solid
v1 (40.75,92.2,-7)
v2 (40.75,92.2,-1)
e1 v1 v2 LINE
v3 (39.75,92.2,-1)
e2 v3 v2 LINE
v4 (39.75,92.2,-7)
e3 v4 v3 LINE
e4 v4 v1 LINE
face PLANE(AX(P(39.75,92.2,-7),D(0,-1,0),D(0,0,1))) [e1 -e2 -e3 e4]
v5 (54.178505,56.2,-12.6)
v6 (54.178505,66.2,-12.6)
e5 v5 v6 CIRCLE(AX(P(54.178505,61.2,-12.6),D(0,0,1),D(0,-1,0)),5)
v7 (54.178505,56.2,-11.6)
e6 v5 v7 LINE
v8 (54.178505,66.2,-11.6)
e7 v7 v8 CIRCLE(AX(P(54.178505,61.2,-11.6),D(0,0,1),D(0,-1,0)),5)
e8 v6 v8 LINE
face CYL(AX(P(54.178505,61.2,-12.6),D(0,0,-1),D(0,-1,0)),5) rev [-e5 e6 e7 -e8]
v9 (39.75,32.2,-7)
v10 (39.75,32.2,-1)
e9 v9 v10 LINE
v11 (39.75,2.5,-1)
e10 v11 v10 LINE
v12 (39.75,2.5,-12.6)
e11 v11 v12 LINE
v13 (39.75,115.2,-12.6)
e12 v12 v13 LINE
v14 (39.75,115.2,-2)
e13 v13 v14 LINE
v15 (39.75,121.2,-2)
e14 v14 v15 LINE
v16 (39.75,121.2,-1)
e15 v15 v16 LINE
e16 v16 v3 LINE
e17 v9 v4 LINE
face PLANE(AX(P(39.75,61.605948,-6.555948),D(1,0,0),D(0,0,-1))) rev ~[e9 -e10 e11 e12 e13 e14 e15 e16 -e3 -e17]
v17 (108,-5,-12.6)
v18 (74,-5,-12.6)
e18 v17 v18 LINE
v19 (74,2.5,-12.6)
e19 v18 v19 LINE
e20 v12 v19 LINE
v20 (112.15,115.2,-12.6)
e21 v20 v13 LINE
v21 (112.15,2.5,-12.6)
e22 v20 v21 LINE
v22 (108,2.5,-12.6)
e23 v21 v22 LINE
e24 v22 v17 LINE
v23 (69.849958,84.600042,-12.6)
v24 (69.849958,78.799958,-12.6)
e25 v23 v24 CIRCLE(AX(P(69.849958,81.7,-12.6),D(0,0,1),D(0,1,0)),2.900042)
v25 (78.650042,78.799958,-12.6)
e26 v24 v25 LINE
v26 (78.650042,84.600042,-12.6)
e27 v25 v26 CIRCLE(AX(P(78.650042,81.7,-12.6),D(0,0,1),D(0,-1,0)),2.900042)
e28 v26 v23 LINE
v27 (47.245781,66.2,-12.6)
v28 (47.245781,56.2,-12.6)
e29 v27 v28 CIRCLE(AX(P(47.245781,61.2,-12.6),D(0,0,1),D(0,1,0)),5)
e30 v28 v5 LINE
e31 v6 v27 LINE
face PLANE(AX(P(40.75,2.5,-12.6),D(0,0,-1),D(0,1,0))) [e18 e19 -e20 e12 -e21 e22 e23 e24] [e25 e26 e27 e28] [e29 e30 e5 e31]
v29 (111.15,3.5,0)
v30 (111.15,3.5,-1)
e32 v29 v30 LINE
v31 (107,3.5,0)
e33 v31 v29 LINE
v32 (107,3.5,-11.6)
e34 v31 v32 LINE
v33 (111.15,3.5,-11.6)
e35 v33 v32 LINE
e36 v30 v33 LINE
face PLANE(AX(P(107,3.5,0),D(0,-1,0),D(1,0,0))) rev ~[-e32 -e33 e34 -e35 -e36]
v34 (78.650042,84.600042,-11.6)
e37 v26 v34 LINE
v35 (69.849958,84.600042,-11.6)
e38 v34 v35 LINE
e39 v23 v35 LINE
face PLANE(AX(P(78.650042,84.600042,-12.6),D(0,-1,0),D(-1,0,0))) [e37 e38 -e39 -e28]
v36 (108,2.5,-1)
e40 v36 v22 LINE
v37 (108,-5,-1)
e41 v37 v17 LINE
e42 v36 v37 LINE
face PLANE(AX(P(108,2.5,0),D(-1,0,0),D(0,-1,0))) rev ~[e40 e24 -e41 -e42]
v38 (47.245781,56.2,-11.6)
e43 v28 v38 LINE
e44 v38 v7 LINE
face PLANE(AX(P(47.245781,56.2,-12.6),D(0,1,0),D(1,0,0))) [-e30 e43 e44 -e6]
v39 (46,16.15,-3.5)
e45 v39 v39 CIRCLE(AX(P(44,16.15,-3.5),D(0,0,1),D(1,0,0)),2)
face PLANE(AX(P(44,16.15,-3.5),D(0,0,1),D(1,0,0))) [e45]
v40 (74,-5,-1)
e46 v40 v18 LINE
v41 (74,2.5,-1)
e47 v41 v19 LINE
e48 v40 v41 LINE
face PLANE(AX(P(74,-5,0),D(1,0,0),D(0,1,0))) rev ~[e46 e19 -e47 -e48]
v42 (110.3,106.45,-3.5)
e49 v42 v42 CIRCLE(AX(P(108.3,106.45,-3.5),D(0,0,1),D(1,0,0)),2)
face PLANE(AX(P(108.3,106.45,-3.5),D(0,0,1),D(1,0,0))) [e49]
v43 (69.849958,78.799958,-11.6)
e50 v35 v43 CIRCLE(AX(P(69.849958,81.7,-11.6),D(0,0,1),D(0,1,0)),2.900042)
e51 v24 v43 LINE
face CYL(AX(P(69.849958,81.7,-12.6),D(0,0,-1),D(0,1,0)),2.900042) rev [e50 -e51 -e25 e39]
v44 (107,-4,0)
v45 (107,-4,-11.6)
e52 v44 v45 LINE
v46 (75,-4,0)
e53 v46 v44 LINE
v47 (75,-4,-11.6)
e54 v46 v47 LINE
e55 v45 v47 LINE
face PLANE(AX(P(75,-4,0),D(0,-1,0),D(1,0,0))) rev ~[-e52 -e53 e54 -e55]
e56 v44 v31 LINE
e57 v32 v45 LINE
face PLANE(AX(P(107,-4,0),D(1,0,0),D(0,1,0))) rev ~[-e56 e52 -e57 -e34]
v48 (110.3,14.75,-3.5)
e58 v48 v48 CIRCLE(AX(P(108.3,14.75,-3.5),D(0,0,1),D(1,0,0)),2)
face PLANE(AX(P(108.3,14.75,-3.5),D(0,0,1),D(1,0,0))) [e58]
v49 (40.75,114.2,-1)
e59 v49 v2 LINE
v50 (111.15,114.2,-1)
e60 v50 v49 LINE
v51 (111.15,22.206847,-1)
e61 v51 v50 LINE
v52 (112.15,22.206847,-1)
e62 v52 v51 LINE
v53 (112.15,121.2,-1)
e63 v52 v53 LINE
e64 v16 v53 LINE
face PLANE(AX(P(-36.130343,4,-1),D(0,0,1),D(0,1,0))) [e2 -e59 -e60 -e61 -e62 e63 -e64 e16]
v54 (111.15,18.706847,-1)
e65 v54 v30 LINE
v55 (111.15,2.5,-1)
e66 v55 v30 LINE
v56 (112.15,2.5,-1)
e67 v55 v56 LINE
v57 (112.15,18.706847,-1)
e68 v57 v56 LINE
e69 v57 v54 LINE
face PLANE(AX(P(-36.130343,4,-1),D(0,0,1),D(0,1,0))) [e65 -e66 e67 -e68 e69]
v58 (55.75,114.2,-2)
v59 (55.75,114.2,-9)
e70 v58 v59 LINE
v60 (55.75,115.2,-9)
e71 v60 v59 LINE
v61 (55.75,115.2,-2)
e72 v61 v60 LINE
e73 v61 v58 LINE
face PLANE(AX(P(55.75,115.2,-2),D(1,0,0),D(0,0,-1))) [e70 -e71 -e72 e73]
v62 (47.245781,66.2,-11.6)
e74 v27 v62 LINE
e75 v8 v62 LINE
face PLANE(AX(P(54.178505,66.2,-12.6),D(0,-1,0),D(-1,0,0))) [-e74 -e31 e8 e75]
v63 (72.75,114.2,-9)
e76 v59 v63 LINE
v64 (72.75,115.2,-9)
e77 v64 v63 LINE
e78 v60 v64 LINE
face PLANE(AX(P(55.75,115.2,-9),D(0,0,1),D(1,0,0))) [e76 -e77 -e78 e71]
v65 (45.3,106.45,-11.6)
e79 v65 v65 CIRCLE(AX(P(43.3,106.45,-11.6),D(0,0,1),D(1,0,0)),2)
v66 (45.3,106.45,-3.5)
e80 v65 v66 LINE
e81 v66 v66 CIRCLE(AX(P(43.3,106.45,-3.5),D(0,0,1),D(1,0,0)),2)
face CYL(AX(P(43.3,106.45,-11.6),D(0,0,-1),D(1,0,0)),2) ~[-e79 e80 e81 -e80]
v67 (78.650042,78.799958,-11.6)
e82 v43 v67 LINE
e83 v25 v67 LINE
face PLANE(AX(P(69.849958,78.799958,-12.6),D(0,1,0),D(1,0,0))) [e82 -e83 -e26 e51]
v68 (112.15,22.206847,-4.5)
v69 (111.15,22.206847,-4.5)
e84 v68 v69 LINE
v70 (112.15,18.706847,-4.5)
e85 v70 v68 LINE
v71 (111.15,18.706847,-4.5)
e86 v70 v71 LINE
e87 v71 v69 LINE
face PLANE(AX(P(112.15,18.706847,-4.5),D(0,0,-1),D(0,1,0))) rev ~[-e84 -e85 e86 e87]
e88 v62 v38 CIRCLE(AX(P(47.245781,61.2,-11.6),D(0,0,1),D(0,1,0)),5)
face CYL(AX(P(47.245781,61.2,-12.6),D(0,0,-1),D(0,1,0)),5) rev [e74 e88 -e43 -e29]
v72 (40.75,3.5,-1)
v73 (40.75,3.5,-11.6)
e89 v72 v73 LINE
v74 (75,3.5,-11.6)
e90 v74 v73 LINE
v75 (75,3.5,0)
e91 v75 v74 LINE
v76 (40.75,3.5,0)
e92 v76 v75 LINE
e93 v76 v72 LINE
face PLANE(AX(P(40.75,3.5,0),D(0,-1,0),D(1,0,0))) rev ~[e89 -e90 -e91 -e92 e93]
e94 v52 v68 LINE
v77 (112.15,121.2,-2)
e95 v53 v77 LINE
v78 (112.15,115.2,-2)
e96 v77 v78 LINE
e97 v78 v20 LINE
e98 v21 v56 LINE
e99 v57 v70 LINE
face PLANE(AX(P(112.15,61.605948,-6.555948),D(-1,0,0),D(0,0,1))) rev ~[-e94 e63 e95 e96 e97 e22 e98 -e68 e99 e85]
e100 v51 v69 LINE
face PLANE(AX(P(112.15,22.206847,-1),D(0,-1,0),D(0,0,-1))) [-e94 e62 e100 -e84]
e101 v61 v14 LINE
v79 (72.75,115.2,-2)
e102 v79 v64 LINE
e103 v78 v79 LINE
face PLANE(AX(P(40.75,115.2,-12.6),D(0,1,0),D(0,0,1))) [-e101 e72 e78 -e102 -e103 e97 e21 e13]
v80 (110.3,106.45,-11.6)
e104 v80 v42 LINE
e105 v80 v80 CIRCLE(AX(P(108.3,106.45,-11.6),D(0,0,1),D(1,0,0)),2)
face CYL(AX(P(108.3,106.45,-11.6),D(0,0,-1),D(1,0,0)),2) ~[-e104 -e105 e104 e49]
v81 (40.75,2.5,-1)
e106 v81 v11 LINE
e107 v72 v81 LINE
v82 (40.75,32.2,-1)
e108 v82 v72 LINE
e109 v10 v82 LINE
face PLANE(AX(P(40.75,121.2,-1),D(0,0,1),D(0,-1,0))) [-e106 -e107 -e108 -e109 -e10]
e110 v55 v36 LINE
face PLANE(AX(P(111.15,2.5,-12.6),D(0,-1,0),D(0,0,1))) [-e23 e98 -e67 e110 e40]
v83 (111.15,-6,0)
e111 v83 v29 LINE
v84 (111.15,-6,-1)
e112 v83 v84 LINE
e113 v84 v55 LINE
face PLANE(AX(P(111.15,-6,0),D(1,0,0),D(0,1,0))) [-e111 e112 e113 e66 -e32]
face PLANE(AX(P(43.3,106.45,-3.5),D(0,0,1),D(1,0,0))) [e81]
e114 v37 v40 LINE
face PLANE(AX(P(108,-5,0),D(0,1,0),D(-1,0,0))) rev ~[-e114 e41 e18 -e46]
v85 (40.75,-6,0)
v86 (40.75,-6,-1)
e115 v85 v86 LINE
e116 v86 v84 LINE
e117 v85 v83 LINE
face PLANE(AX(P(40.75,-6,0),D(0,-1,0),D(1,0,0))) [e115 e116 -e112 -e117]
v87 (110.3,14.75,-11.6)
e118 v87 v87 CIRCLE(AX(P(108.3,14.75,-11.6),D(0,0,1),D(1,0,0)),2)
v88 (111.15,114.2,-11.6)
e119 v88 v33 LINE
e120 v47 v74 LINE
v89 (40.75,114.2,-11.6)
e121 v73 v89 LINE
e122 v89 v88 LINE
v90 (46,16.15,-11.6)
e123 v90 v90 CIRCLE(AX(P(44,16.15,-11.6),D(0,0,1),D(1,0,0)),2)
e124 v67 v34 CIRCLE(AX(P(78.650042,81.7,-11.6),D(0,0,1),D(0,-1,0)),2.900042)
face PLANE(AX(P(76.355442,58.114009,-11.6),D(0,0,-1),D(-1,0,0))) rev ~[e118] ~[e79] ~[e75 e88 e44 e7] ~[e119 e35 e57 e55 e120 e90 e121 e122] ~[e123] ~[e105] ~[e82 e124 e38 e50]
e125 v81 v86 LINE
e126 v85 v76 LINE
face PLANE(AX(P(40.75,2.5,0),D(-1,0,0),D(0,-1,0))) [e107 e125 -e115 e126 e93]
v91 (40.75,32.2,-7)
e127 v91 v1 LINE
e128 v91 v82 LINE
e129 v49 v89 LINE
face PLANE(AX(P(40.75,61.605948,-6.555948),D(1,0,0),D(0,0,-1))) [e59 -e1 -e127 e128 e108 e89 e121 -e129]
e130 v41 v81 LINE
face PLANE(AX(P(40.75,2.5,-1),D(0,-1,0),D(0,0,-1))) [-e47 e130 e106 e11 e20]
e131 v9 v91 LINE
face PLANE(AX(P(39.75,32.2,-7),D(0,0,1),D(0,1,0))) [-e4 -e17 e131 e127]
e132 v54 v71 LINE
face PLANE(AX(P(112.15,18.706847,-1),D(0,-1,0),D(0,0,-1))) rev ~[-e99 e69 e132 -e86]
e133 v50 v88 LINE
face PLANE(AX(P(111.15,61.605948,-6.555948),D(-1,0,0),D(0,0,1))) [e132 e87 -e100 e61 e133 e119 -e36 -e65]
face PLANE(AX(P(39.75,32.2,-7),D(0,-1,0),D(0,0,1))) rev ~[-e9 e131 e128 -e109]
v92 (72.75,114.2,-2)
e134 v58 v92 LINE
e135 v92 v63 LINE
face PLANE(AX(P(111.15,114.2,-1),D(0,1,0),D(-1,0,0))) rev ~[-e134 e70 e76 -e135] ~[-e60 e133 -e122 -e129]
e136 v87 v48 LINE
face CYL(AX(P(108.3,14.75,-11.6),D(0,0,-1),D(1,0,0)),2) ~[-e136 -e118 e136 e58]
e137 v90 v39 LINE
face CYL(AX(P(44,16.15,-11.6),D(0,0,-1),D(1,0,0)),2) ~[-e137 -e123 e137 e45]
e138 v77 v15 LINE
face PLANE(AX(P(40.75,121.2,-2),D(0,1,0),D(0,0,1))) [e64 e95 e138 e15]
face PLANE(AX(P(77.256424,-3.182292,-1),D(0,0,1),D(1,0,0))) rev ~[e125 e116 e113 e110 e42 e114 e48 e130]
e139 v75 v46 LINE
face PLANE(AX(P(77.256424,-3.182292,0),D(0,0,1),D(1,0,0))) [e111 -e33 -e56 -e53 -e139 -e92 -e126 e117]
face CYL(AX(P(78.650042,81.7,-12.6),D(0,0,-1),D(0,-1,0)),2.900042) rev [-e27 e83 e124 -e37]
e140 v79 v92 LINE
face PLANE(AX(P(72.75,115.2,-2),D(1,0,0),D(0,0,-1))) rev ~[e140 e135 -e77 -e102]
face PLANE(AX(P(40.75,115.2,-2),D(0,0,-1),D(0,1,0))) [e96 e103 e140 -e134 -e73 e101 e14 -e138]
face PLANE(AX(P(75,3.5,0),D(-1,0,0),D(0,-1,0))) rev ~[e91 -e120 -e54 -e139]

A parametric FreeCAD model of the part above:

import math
import FreeCAD as App
import Part
import Sketcher

V = App.Vector
Q = App.Units.Quantity


def add_polygon(sketch, points):
    """Adds a closed chain of lines whose ends are joined by coincident constraints."""
    first, n = sketch.GeometryCount, len(points)
    for a, b in zip(points, points[1:] + points[:1]):
        sketch.addGeometry(Part.LineSegment(App.Vector(*a, 0), App.Vector(*b, 0)), False)
    for i in range(n):
        sketch.addConstraint(Sketcher.Constraint("Coincident", first + i, 2, first + (i + 1) % n, 1))

doc = App.newDocument("Part")
body = doc.addObject("PartDesign::Body", "Body")

# Sketch on XY plane
sketch1 = body.newObject("Sketcher::SketchObject", "Sketch")
sketch1.AttachmentSupport = (doc.getObject("XY_Plane"), [""])
sketch1.MapMode = "FlatFace"
add_polygon(sketch1, [(6, 118), (6, 7), (176, 7), (176, 118)])  # lines 0-3
sketch1.addConstraint([
    Sketcher.Constraint("Vertical", 0),
    Sketcher.Constraint("Horizontal", 1),
    Sketcher.Constraint("Vertical", 2),
    Sketcher.Constraint("Horizontal", 3),
    Sketcher.Constraint("DistanceX", 1, 1, 1, 2, Q("170.2 mm")),
    Sketcher.Constraint("DistanceY", 0, 2, 0, 1, Q("111.2 mm")),
    Sketcher.Constraint("DistanceY", -1, 1, 0, 2, Q("7 mm")),
    Sketcher.Constraint("DistanceX", -1, 1, 0, 2, Q("5.9 mm")),
])
pad1 = body.newObject("PartDesign::Pad", "Pad")
pad1.Profile = sketch1
pad1.Length = 0.9

# Sketch on XY plane
sketch2 = body.newObject("Sketcher::SketchObject", "Sketch001")
sketch2.AttachmentSupport = (doc.getObject("XY_Plane"), [""])
sketch2.MapMode = "FlatFace"
add_polygon(sketch2, [(179, 121), (179, 4), (3, 4), (3, 121)])  # lines 0-3
sketch2.addConstraint([
    Sketcher.Constraint("Vertical", 0),
    Sketcher.Constraint("Horizontal", 1),
    Sketcher.Constraint("Vertical", 2),
    Sketcher.Constraint("Horizontal", 3),
    Sketcher.Constraint("DistanceX", 1, 2, 1, 1, Q("176.2 mm")),
    Sketcher.Constraint("DistanceY", 0, 2, 0, 1, Q("117.2 mm")),
    Sketcher.Constraint("DistanceY", -1, 1, 0, 2, Q("4 mm")),
    Sketcher.Constraint("DistanceX", -1, 1, 0, 2, Q("179.1 mm")),
])
pad2 = body.newObject("PartDesign::Pad", "Pad001")
pad2.Profile = sketch2
pad2.Length = 1
pad2.Reversed = True

# Sketch on XZ plane
sketch3 = body.newObject("Sketcher::SketchObject", "Sketch002")
sketch3.AttachmentSupport = (doc.getObject("XZ_Plane"), [""])
sketch3.MapMode = "FlatFace"
sketch3.AttachmentOffset = App.Placement(V(0, 0, -4), App.Rotation())
add_polygon(sketch3, [(75, 0.9), (75, -1), (107, -1), (107, 0.9)])  # lines 0-3
sketch3.addConstraint([
    Sketcher.Constraint("Vertical", 0),
    Sketcher.Constraint("Horizontal", 1),
    Sketcher.Constraint("Vertical", 2),
    Sketcher.Constraint("Horizontal", 3),
    Sketcher.Constraint("DistanceX", 1, 1, 1, 2, Q("32 mm")),
    Sketcher.Constraint("DistanceY", 0, 2, 0, 1, Q("1.9 mm")),
    Sketcher.Constraint("DistanceX", -1, 1, 0, 2, Q("75 mm")),
    Sketcher.Constraint("DistanceY", 0, 2, -1, 1, Q("1 mm")),
])
pocket1 = body.newObject("PartDesign::Pocket", "Pocket")
pocket1.Profile = sketch3
pocket1.Length = 5

# Sketch on XY plane
sketch4 = body.newObject("Sketcher::SketchObject", "Sketch003")
sketch4.AttachmentSupport = (doc.getObject("XY_Plane"), [""])
sketch4.MapMode = "FlatFace"
sketch4.AttachmentOffset = App.Placement(V(0, 0, -1), App.Rotation())
add_polygon(sketch4, [(111, 121), (111, 114), (41, 114), (41, 121)])  # lines 0-3
sketch4.addConstraint([
    Sketcher.Constraint("Vertical", 0),
    Sketcher.Constraint("Horizontal", 1),
    Sketcher.Constraint("Vertical", 2),
    Sketcher.Constraint("Horizontal", 3),
    Sketcher.Constraint("DistanceY", 0, 2, 0, 1, Q("7 mm")),
    Sketcher.Constraint("DistanceX", 1, 2, 1, 1, Q("70.4 mm")),
    Sketcher.Constraint("DistanceY", -1, 1, 0, 2, Q("114.2 mm")),
    Sketcher.Constraint("DistanceX", -1, 1, 0, 2, Q("111.15 mm")),
])
pad3 = body.newObject("PartDesign::Pad", "Pad002")
pad3.Profile = sketch4
pad3.Length = 1
pad3.Reversed = True

# Sketch on XY plane
sketch5 = body.newObject("Sketcher::SketchObject", "Sketch004")
sketch5.AttachmentSupport = (doc.getObject("XY_Plane"), [""])
sketch5.MapMode = "FlatFace"
sketch5.AttachmentOffset = App.Placement(V(0, 0, -1), App.Rotation())
add_polygon(sketch5, [(111.2, 115.2), (111.2, 114.2), (40.8, 114.2), (40.8, 115.2)])  # lines 0-3
sketch5.addConstraint([
    Sketcher.Constraint("Vertical", 0),
    Sketcher.Constraint("Horizontal", 1),
    Sketcher.Constraint("Vertical", 2),
    Sketcher.Constraint("Horizontal", 3),
    Sketcher.Constraint("DistanceY", 0, 2, 0, 1, Q("1 mm")),
    Sketcher.Constraint("DistanceX", 1, 2, 1, 1, Q("70.4 mm")),
    Sketcher.Constraint("DistanceY", -1, 1, 0, 2, Q("114.2 mm")),
    Sketcher.Constraint("DistanceX", -1, 1, 0, 2, Q("111.15 mm")),
])
pad4 = body.newObject("PartDesign::Pad", "Pad003")
pad4.Profile = sketch5
pad4.Length = 11.6
pad4.Reversed = True

# Sketch on XY plane
sketch6 = body.newObject("Sketcher::SketchObject", "Sketch005")
sketch6.AttachmentSupport = (doc.getObject("XY_Plane"), [""])
sketch6.MapMode = "FlatFace"
sketch6.AttachmentOffset = App.Placement(V(0, 0, -12.6), App.Rotation())
add_polygon(sketch6, [(40.8, 114.2), (111.2, 114.2), (111.2, 2.5), (108, 2.5), (108, -5), (74, -5), (74, 2.5), (40.8, 2.5)])  # lines 0-7
sketch6.addConstraint([
    Sketcher.Constraint("Horizontal", 0),
    Sketcher.Constraint("Vertical", 1),
    Sketcher.Constraint("Horizontal", 2),
    Sketcher.Constraint("Vertical", 3),
    Sketcher.Constraint("Horizontal", 4),
    Sketcher.Constraint("Vertical", 5),
    Sketcher.Constraint("Horizontal", 6),
    Sketcher.Constraint("Vertical", 7),
    Sketcher.Constraint("Horizontal", 2, 2, 5, 2),
    Sketcher.Constraint("DistanceX", 4, 2, 4, 1, Q("34 mm")),
    Sketcher.Constraint("DistanceX", 0, 1, 0, 2, Q("70.4 mm")),
    Sketcher.Constraint("DistanceY", 1, 2, 1, 1, Q("111.7 mm")),
    Sketcher.Constraint("DistanceY", 3, 2, 3, 1, Q("7.5 mm")),
    Sketcher.Constraint("DistanceX", -1, 1, 2, 2, Q("108 mm")),
    Sketcher.Constraint("DistanceY", 3, 2, -1, 1, Q("5 mm")),
    Sketcher.Constraint("DistanceX", 2, 2, 2, 1, Q("3.15 mm")),
])
pad5 = body.newObject("PartDesign::Pad", "Pad004")
pad5.Profile = sketch6
pad5.Length = 1

# Sketch on XY plane
sketch7 = body.newObject("Sketcher::SketchObject", "Sketch006")
sketch7.AttachmentSupport = (doc.getObject("XY_Plane"), [""])
sketch7.MapMode = "FlatFace"
sketch7.AttachmentOffset = App.Placement(V(0, 0, -1), App.Rotation())
add_polygon(sketch7, [(107, 3.5), (111.2, 3.5), (111.2, 2.5), (108, 2.5), (108, -5), (74, -5), (74, 2.5), (40.8, 2.5), (40.8, 3.5), (75, 3.5), (75, -4), (107, -4)])  # lines 0-11
sketch7.addConstraint([
    Sketcher.Constraint("Horizontal", 0),
    Sketcher.Constraint("Vertical", 1),
    Sketcher.Constraint("Horizontal", 2),
    Sketcher.Constraint("Vertical", 3),
    Sketcher.Constraint("Horizontal", 4),
    Sketcher.Constraint("Vertical", 5),
    Sketcher.Constraint("Horizontal", 6),
    Sketcher.Constraint("Vertical", 7),
    Sketcher.Constraint("Horizontal", 8),
    Sketcher.Constraint("Vertical", 9),
    Sketcher.Constraint("Horizontal", 10),
    Sketcher.Constraint("Vertical", 11),
    Sketcher.Constraint("Horizontal", 2, 2, 5, 2),
    Sketcher.Constraint("Horizontal", 0, 2, 7, 2),
    Sketcher.Constraint("Equal", 5, 9),
    Sketcher.Constraint("DistanceX", 4, 2, 4, 1, Q("34 mm")),
    Sketcher.Constraint("DistanceX", 10, 1, 10, 2, Q("32 mm")),
    Sketcher.Constraint("DistanceY", 1, 2, 1, 1, Q("1 mm")),
    Sketcher.Constraint("DistanceY", 3, 2, 3, 1, Q("7.5 mm")),
    Sketcher.Constraint("DistanceX", -1, 1, 2, 2, Q("108 mm")),
    Sketcher.Constraint("DistanceY", 3, 2, -1, 1, Q("5 mm")),
    Sketcher.Constraint("DistanceX", -1, 1, 8, 2, Q("75 mm")),
    Sketcher.Constraint("DistanceX", 0, 1, 0, 2, Q("4.15 mm")),
    Sketcher.Constraint("DistanceX", 6, 2, 6, 1, Q("33.25 mm")),
])
pad6 = body.newObject("PartDesign::Pad", "Pad005")
pad6.Profile = sketch7
pad6.Type = "TwoLengths"
pad6.Length = 11.6
pad6.Length2 = 1
pad6.Reversed = True

# Sketch on XY plane
sketch8 = body.newObject("Sketcher::SketchObject", "Sketch007")
sketch8.AttachmentSupport = (doc.getObject("XY_Plane"), [""])
sketch8.MapMode = "FlatFace"
add_polygon(sketch8, [(40.8, 2.5), (74, 2.5), (74, -5), (108, -5), (108, 2.5), (111.2, 2.5), (111.2, -6), (40.8, -6)])  # lines 0-7
sketch8.addConstraint([
    Sketcher.Constraint("Horizontal", 0),
    Sketcher.Constraint("Vertical", 1),
    Sketcher.Constraint("Horizontal", 2),
    Sketcher.Constraint("Vertical", 3),
    Sketcher.Constraint("Horizontal", 4),
    Sketcher.Constraint("Vertical", 5),
    Sketcher.Constraint("Horizontal", 6),
    Sketcher.Constraint("Vertical", 7),
    Sketcher.Constraint("Horizontal", 0, 2, 3, 2),
    Sketcher.Constraint("DistanceX", 2, 1, 2, 2, Q("34 mm")),
    Sketcher.Constraint("DistanceX", 6, 2, 6, 1, Q("70.4 mm")),
    Sketcher.Constraint("DistanceY", 1, 2, 1, 1, Q("7.5 mm")),
    Sketcher.Constraint("DistanceY", 5, 2, 5, 1, Q("8.5 mm")),
    Sketcher.Constraint("DistanceX", -1, 1, 0, 2, Q("74 mm")),
    Sketcher.Constraint("DistanceY", 1, 2, -1, 1, Q("5 mm")),
    Sketcher.Constraint("DistanceX", 0, 1, 0, 2, Q("33.25 mm")),
])
pad7 = body.newObject("PartDesign::Pad", "Pad006")
pad7.Profile = sketch8
pad7.Length = 1
pad7.Reversed = True

# Sketch on YZ plane
sketch9 = body.newObject("Sketcher::SketchObject", "Sketch008")
sketch9.AttachmentSupport = (doc.getObject("YZ_Plane"), [""])
sketch9.MapMode = "FlatFace"
sketch9.AttachmentOffset = App.Placement(V(0, 0, 111.15), App.Rotation())
add_polygon(sketch9, [(121.2, -2), (121.2, -1), (2.5, -1), (2.5, -12.6), (115.2, -12.6), (115.2, -2)])  # lines 0-5
sketch9.addConstraint([
    Sketcher.Constraint("Vertical", 0),
    Sketcher.Constraint("Horizontal", 1),
    Sketcher.Constraint("Vertical", 2),
    Sketcher.Constraint("Horizontal", 3),
    Sketcher.Constraint("Vertical", 4),
    Sketcher.Constraint("Horizontal", 5),
    Sketcher.Constraint("DistanceX", 5, 1, 5, 2, Q("6 mm")),
    Sketcher.Constraint("DistanceY", 0, 1, 0, 2, Q("1 mm")),
    Sketcher.Constraint("DistanceX", 1, 2, 1, 1, Q("118.7 mm")),
    Sketcher.Constraint("DistanceY", 2, 2, 2, 1, Q("11.6 mm")),
    Sketcher.Constraint("DistanceY", 0, 2, -1, 1, Q("1 mm")),
    Sketcher.Constraint("DistanceX", -1, 1, 0, 2, Q("121.2 mm")),
])
pad8 = body.newObject("PartDesign::Pad", "Pad007")
pad8.Profile = sketch9
pad8.Length = 1

# Sketch on YZ plane
sketch10 = body.newObject("Sketcher::SketchObject", "Sketch009")
sketch10.AttachmentSupport = (doc.getObject("YZ_Plane"), [""])
sketch10.MapMode = "FlatFace"
sketch10.AttachmentOffset = App.Placement(V(0, 0, 40.75), App.Rotation())
add_polygon(sketch10, [(121.2, -1), (121.2, -2), (115.2, -2), (115.2, -12.6), (2.5, -12.6), (2.5, -1)])  # lines 0-5
sketch10.addConstraint([
    Sketcher.Constraint("Vertical", 0),
    Sketcher.Constraint("Horizontal", 1),
    Sketcher.Constraint("Vertical", 2),
    Sketcher.Constraint("Horizontal", 3),
    Sketcher.Constraint("Vertical", 4),
    Sketcher.Constraint("Horizontal", 5),
    Sketcher.Constraint("DistanceX", 1, 2, 1, 1, Q("6 mm")),
    Sketcher.Constraint("DistanceY", 0, 2, 0, 1, Q("1 mm")),
    Sketcher.Constraint("DistanceX", 3, 2, 3, 1, Q("112.7 mm")),
    Sketcher.Constraint("DistanceY", 2, 2, 2, 1, Q("10.6 mm")),
    Sketcher.Constraint("DistanceY", 0, 2, -1, 1, Q("2 mm")),
    Sketcher.Constraint("DistanceX", -1, 1, 0, 2, Q("121.2 mm")),
])
pad9 = body.newObject("PartDesign::Pad", "Pad008")
pad9.Profile = sketch10
pad9.Length = 1
pad9.Reversed = True

# Sketch on YZ plane
sketch11 = body.newObject("Sketcher::SketchObject", "Sketch010")
sketch11.AttachmentSupport = (doc.getObject("YZ_Plane"), [""])
sketch11.MapMode = "FlatFace"
sketch11.AttachmentOffset = App.Placement(V(0, 0, 39.75), App.Rotation())
add_polygon(sketch11, [(92, -7), (32, -7), (32, -1), (92, -1)])  # lines 0-3
sketch11.addConstraint([
    Sketcher.Constraint("Horizontal", 0),
    Sketcher.Constraint("Vertical", 1),
    Sketcher.Constraint("Horizontal", 2),
    Sketcher.Constraint("Vertical", 3),
    Sketcher.Constraint("DistanceX", 0, 2, 0, 1, Q("60 mm")),
    Sketcher.Constraint("DistanceY", 1, 1, 1, 2, Q("6 mm")),
    Sketcher.Constraint("DistanceY", 0, 2, -1, 1, Q("7 mm")),
    Sketcher.Constraint("DistanceX", -1, 1, 0, 2, Q("32.2 mm")),
])
pocket2 = body.newObject("PartDesign::Pocket", "Pocket001")
pocket2.Profile = sketch11
pocket2.Length = 1
pocket2.Reversed = True

# Sketch on YZ plane
sketch12 = body.newObject("Sketcher::SketchObject", "Sketch011")
sketch12.AttachmentSupport = (doc.getObject("YZ_Plane"), [""])
sketch12.MapMode = "FlatFace"
sketch12.AttachmentOffset = App.Placement(V(0, 0, 112.15), App.Rotation())
add_polygon(sketch12, [(22.2, -1), (18.7, -1), (18.7, -4.5), (22.2, -4.5)])  # lines 0-3
sketch12.addConstraint([
    Sketcher.Constraint("Horizontal", 0),
    Sketcher.Constraint("Vertical", 1),
    Sketcher.Constraint("Horizontal", 2),
    Sketcher.Constraint("Vertical", 3),
    Sketcher.Constraint("Equal", 2, 1),
    Sketcher.Constraint("DistanceX", 0, 2, 0, 1, Q("3.5 mm")),
    Sketcher.Constraint("DistanceY", 0, 2, -1, 1, Q("1 mm")),
    Sketcher.Constraint("DistanceX", -1, 1, 0, 2, Q("18.706847 mm")),
])
pocket3 = body.newObject("PartDesign::Pocket", "Pocket002")
pocket3.Profile = sketch12
pocket3.Length = 1

# Sketch on XZ plane
sketch13 = body.newObject("Sketcher::SketchObject", "Sketch012")
sketch13.AttachmentSupport = (doc.getObject("XZ_Plane"), [""])
sketch13.MapMode = "FlatFace"
sketch13.AttachmentOffset = App.Placement(V(0, 0, -115.2), App.Rotation())
add_polygon(sketch13, [(56, -9), (56, -2), (73, -2), (73, -9)])  # lines 0-3
sketch13.addConstraint([
    Sketcher.Constraint("Vertical", 0),
    Sketcher.Constraint("Horizontal", 1),
    Sketcher.Constraint("Vertical", 2),
    Sketcher.Constraint("Horizontal", 3),
    Sketcher.Constraint("DistanceX", 1, 1, 1, 2, Q("17 mm")),
    Sketcher.Constraint("DistanceY", 0, 1, 0, 2, Q("7 mm")),
    Sketcher.Constraint("DistanceY", 0, 2, -1, 1, Q("2 mm")),
    Sketcher.Constraint("DistanceX", -1, 1, 0, 2, Q("55.75 mm")),
])
pocket4 = body.newObject("PartDesign::Pocket", "Pocket003")
pocket4.Profile = sketch13
pocket4.Length = 1
pocket4.Reversed = True

# Sketch on XY plane
sketch14 = body.newObject("Sketcher::SketchObject", "Sketch013")
sketch14.AttachmentSupport = (doc.getObject("XY_Plane"), [""])
sketch14.MapMode = "FlatFace"
sketch14.AttachmentOffset = App.Placement(V(0, 0, -12.6), App.Rotation())
sketch14.addGeometry([
    Part.LineSegment(V(47, 66, 0), V(54, 66, 0)),
    Part.ArcOfCircle(Part.Circle(V(54, 61, 0), V(0, 0, 1), 5), math.radians(-90), math.radians(90)),
    Part.LineSegment(V(54, 56, 0), V(47, 56, 0)),
    Part.ArcOfCircle(Part.Circle(V(47, 61, 0), V(0, 0, 1), 5), math.radians(90), math.radians(270)),
], False)
sketch14.addConstraint([
    Sketcher.Constraint("Tangent", 0, 2, 1, 2),
    Sketcher.Constraint("Tangent", 1, 1, 2, 1),
    Sketcher.Constraint("Tangent", 2, 2, 3, 2),
    Sketcher.Constraint("Tangent", 3, 1, 0, 1),
    Sketcher.Constraint("Horizontal", 0),
    Sketcher.Constraint("Horizontal", 2),
    Sketcher.Constraint("Radius", 1, Q("5 mm")),
    Sketcher.Constraint("DistanceY", -1, 1, 1, 3, Q("61.2 mm")),
    Sketcher.Constraint("DistanceX", 0, 1, 0, 2, Q("6.932724 mm")),
    Sketcher.Constraint("DistanceX", -1, 1, 3, 3, Q("47.245781 mm")),
])
pocket5 = body.newObject("PartDesign::Pocket", "Pocket004")
pocket5.Profile = sketch14
pocket5.Length = 1
pocket5.Reversed = True

# Sketch on XY plane
sketch15 = body.newObject("Sketcher::SketchObject", "Sketch014")
sketch15.AttachmentSupport = (doc.getObject("XY_Plane"), [""])
sketch15.MapMode = "FlatFace"
sketch15.AttachmentOffset = App.Placement(V(0, 0, -12.6), App.Rotation())
sketch15.addGeometry([
    Part.LineSegment(V(69.8, 84.6, 0), V(78.7, 84.6, 0)),
    Part.ArcOfCircle(Part.Circle(V(78.7, 81.7, 0), V(0, 0, 1), 2.9), math.radians(-90), math.radians(90)),
    Part.LineSegment(V(78.7, 78.8, 0), V(69.8, 78.8, 0)),
    Part.ArcOfCircle(Part.Circle(V(69.8, 81.7, 0), V(0, 0, 1), 2.9), math.radians(90), math.radians(270)),
], False)
sketch15.addConstraint([
    Sketcher.Constraint("Tangent", 0, 2, 1, 2),
    Sketcher.Constraint("Tangent", 1, 1, 2, 1),
    Sketcher.Constraint("Tangent", 2, 2, 3, 2),
    Sketcher.Constraint("Tangent", 3, 1, 0, 1),
    Sketcher.Constraint("Horizontal", 0),
    Sketcher.Constraint("Horizontal", 2),
    Sketcher.Constraint("DistanceY", -1, 1, 1, 3, Q("81.7 mm")),
    Sketcher.Constraint("Radius", 1, Q("2.900042 mm")),
    Sketcher.Constraint("DistanceX", 0, 1, 0, 2, Q("8.800085 mm")),
    Sketcher.Constraint("DistanceX", -1, 1, 1, 3, Q("78.650042 mm")),
])
pocket6 = body.newObject("PartDesign::Pocket", "Pocket005")
pocket6.Profile = sketch15
pocket6.Length = 1
pocket6.Reversed = True

# Sketch on YZ plane
sketch16 = body.newObject("Sketcher::SketchObject", "Sketch015")
sketch16.AttachmentSupport = (doc.getObject("YZ_Plane"), [""])
sketch16.MapMode = "FlatFace"
sketch16.AttachmentOffset = App.Placement(V(0, 0, 179.1), App.Rotation())
add_polygon(sketch16, [(158, 40), (4, 40), (4, -1), (158, -1)])  # lines 0-3
sketch16.addConstraint([
    Sketcher.Constraint("Horizontal", 0),
    Sketcher.Constraint("Vertical", 1),
    Sketcher.Constraint("Horizontal", 2),
    Sketcher.Constraint("Vertical", 3),
    Sketcher.Constraint("DistanceX", -1, 1, 0, 2, Q("4 mm")),
    Sketcher.Constraint("DistanceY", 1, 2, -1, 1, Q("1 mm")),
    Sketcher.Constraint("DistanceX", 0, 2, 0, 1, Q("153.828822 mm")),
    Sketcher.Constraint("DistanceY", 1, 2, 1, 1, Q("40.807617 mm")),
])
pocket7 = body.newObject("PartDesign::Pocket", "Pocket006")
pocket7.Profile = sketch16
pocket7.Type = "ThroughAll"
pocket7.Midplane = True

# Sketch on XY plane
sketch17 = body.newObject("Sketcher::SketchObject", "Sketch016")
sketch17.AttachmentSupport = (doc.getObject("XY_Plane"), [""])
sketch17.MapMode = "FlatFace"
sketch17.AttachmentOffset = App.Placement(V(0, 0, -11.6), App.Rotation())
sketch17.addGeometry([
    Part.Circle(V(43.3, 106.5, 0), V(0, 0, 1), 2),
    Part.Circle(V(108.3, 106.5, 0), V(0, 0, 1), 2),
    Part.Circle(V(108.3, 14.8, 0), V(0, 0, 1), 2),
    Part.Circle(V(44, 16.1, 0), V(0, 0, 1), 2),
], False)
sketch17.addConstraint([
    Sketcher.Constraint("Equal", 0, 1),
    Sketcher.Constraint("Equal", 1, 2),
    Sketcher.Constraint("Equal", 2, 3),
    Sketcher.Constraint("Horizontal", 0, 3, 1, 3),
    Sketcher.Constraint("Vertical", 1, 3, 2, 3),
    Sketcher.Constraint("Diameter", 0, Q("4 mm")),
    Sketcher.Constraint("DistanceX", -1, 1, 3, 3, Q("44 mm")),
    Sketcher.Constraint("DistanceX", 0, 3, 1, 3, Q("65 mm")),
    Sketcher.Constraint("DistanceX", -1, 1, 0, 3, Q("43.3 mm")),
    Sketcher.Constraint("DistanceY", 2, 3, 1, 3, Q("91.7 mm")),
    Sketcher.Constraint("DistanceY", 2, 3, 3, 3, Q("1.4 mm")),
    Sketcher.Constraint("DistanceY", -1, 1, 0, 3, Q("106.45 mm")),
])
pad10 = body.newObject("PartDesign::Pad", "Pad009")
pad10.Profile = sketch17
pad10.Length = 8.1

doc.recompute()
